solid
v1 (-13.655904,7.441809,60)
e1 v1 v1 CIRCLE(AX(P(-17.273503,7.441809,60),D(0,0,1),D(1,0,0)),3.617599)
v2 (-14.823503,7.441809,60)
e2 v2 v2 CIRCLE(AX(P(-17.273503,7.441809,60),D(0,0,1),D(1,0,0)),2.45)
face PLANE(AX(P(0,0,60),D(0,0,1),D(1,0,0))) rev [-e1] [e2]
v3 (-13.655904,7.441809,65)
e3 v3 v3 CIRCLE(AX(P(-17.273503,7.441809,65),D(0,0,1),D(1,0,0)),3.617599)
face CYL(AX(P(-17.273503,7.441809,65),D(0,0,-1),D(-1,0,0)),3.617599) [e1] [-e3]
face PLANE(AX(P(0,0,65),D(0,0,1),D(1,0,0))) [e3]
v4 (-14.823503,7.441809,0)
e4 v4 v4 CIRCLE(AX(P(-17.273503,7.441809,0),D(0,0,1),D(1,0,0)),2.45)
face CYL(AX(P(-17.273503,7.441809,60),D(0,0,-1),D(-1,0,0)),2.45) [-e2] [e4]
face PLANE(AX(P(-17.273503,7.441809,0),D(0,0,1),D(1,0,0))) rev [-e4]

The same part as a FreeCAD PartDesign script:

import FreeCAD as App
import Part
import Sketcher

V = App.Vector

doc = App.newDocument("Part")
body = doc.addObject("PartDesign::Body", "Body")

# Sketch on XY plane
sketch1 = body.newObject("Sketcher::SketchObject", "Sketch")
sketch1.AttachmentSupport = (doc.getObject("XY_Plane"), [""])
sketch1.MapMode = "FlatFace"
sketch1.addGeometry(Part.Circle(V(-17.3, 7.4, 0), V(0, 0, 1), 2.5), False)
sketch1.addConstraint([
    Sketcher.Constraint("Diameter", 0, 4.9),
    Sketcher.Constraint("DistanceY", -1, 1, 0, 3, 7.441809),
    Sketcher.Constraint("DistanceX", 0, 3, -1, 1, 17.273503),
])
pad1 = body.newObject("PartDesign::Pad", "Pad")
pad1.Profile = sketch1
pad1.Length = 60

# Sketch on XY plane
sketch2 = body.newObject("Sketcher::SketchObject", "Sketch001")
sketch2.AttachmentSupport = (doc.getObject("XY_Plane"), [""])
sketch2.MapMode = "FlatFace"
sketch2.AttachmentOffset = App.Placement(V(0, 0, 60), App.Rotation())
sketch2.addGeometry(Part.Circle(V(-17.3, 7.4, 0), V(0, 0, 1), 3.6), False)
sketch2.addConstraint([
    Sketcher.Constraint("Diameter", 0, 7.235198),
    Sketcher.Constraint("DistanceY", -1, 1, 0, 3, 7.441809),
    Sketcher.Constraint("DistanceX", 0, 3, -1, 1, 17.273503),
])
pad2 = body.newObject("PartDesign::Pad", "Pad001")
pad2.Profile = sketch2
pad2.Length = 5

doc.recompute()
